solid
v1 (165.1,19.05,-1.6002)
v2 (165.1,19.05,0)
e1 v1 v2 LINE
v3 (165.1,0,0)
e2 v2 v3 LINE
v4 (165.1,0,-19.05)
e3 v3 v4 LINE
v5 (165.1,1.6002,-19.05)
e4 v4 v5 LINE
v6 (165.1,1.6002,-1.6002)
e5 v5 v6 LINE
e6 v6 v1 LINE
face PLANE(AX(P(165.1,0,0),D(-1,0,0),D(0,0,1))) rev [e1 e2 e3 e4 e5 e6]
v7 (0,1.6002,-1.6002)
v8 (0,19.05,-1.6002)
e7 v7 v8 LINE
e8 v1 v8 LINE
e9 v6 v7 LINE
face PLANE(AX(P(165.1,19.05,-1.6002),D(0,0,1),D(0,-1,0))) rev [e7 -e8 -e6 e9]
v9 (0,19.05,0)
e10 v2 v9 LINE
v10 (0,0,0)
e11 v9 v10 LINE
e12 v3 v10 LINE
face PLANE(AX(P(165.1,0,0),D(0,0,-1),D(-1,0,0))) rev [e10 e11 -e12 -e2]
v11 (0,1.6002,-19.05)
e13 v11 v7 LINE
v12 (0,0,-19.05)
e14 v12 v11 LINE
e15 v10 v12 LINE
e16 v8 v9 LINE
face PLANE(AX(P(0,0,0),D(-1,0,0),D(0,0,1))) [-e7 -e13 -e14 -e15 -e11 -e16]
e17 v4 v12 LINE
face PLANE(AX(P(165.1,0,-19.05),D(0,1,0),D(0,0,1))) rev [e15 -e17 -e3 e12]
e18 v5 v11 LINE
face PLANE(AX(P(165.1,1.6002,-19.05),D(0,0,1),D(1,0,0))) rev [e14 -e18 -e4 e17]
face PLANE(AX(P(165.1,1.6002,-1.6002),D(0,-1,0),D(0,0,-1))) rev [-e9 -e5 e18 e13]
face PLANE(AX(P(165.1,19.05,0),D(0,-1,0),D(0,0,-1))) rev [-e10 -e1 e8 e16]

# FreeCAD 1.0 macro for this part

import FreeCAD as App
import Part
import Sketcher

V = App.Vector
Q = App.Units.Quantity

doc = App.newDocument("Part")
params = doc.addObject("Spreadsheet::Sheet", "Params")
for row, (alias, value) in enumerate([
    ("sketch1_width", "0.75 in"),
    ("sketch1_width2", "0.063 in"),
    ("pad1_length", "6.5 in"),
], start=1):
    params.set(f"A{row}", alias)
    params.set(f"B{row}", "=" + value)
    params.setAlias(f"B{row}", alias)

body = doc.addObject("PartDesign::Body", "Body")

# Sketch on YZ plane
sketch1 = doc.addObject("Sketcher::SketchObject", "Sketch")
body.addObject(sketch1)
sketch1.AttachmentSupport = (doc.YZ_Plane, [""])
sketch1.MapMode = "FlatFace"
sketch1.addGeometry([
    Part.LineSegment(V(19.1, 0, 0), V(0, 0, 0)),  # 0
    Part.LineSegment(V(0, 0, 0), V(0, -19.1, 0)),  # 1
    Part.LineSegment(V(0, -19.1, 0), V(1.6, -19.1, 0)),  # 2
    Part.LineSegment(V(1.6, -19.1, 0), V(1.6, -1.6, 0)),  # 3
    Part.LineSegment(V(1.6, -1.6, 0), V(19.1, -1.6, 0)),  # 4
    Part.LineSegment(V(19.1, -1.6, 0), V(19.1, 0, 0)),  # 5
], False)
sketch1.addConstraint([
    Sketcher.Constraint("Coincident", 0, 2, 1, 1),
    Sketcher.Constraint("Coincident", 1, 2, 2, 1),
    Sketcher.Constraint("Coincident", 2, 2, 3, 1),
    Sketcher.Constraint("Coincident", 3, 2, 4, 1),
    Sketcher.Constraint("Coincident", 4, 2, 5, 1),
    Sketcher.Constraint("Coincident", 5, 2, 0, 1),
    Sketcher.Constraint("Horizontal", 0),
    Sketcher.Constraint("Vertical", 1),
    Sketcher.Constraint("Horizontal", 2),
    Sketcher.Constraint("Vertical", 3),
    Sketcher.Constraint("Horizontal", 4),
    Sketcher.Constraint("Vertical", 5),
    Sketcher.Constraint("Coincident", 0, 2, -1, 1),
    Sketcher.Constraint("Equal", 0, 1),
    Sketcher.Constraint("Equal", 4, 3),
    Sketcher.Constraint("DistanceX", 0, 2, 0, 1, Q("0.75 in")),
    Sketcher.Constraint("DistanceX", 2, 1, 2, 2, Q("0.063 in")),
])
sketch1.setExpression("Constraints[15]", "Params.sketch1_width")
sketch1.setExpression("Constraints[16]", "Params.sketch1_width2")
pad1 = doc.addObject("PartDesign::Pad", "Pad")
body.addObject(pad1)
pad1.Profile = sketch1
pad1.setExpression("Length", "Params.pad1_length")

doc.recompute()
